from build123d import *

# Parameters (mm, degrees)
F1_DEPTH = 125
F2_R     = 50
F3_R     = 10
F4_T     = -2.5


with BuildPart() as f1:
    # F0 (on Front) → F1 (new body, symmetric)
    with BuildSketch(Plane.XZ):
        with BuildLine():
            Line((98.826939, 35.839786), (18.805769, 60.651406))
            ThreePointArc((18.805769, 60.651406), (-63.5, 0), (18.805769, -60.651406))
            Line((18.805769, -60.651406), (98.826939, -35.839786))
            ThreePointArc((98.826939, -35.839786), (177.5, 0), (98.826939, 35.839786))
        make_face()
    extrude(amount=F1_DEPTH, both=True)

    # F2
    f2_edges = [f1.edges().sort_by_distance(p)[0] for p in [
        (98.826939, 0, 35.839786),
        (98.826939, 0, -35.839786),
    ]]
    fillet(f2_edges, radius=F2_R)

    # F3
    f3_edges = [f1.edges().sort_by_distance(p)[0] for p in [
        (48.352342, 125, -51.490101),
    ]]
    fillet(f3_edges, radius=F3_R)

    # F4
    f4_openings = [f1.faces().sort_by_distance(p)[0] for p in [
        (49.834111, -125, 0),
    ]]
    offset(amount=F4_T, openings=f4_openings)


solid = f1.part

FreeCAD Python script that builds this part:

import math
import FreeCAD as App
import Part
import Sketcher
from FreeCAD import Vector


def edges_at(feature, points):
    """Names of the edges that pass closest to the given points."""
    edges = feature.Shape.Edges
    near = lambda p: min(range(len(edges)), key=lambda i: edges[i].distToShape(Part.Vertex(*p))[0])
    return sorted({f"Edge{near(p) + 1}" for p in points})


def faces_at(feature, points):
    """Names of the faces that lie closest to the given points."""
    faces = feature.Shape.Faces
    near = lambda p: min(range(len(faces)), key=lambda i: faces[i].distToShape(Part.Vertex(*p))[0])
    return sorted({f"Face{near(p) + 1}" for p in points})

doc = App.newDocument("Part")
body = doc.addObject("PartDesign::Body", "Body")

# Sketch on XZ plane
sketch1 = body.newObject("Sketcher::SketchObject", "Sketch")
sketch1.AttachmentSupport = (doc.getObject("XZ_Plane"), [""])
sketch1.MapMode = "FlatFace"
sketch1.addGeometry([
    Part.LineSegment(Vector(99, 36, 0), Vector(19, 61, 0)),
    Part.ArcOfCircle(Part.Circle(Vector(0, 0, 0), Vector(0, 0, 1), 63), math.radians(73), math.radians(287)),
    Part.LineSegment(Vector(19, -61, 0), Vector(99, -36, 0)),
    Part.ArcOfCircle(Part.Circle(Vector(130, 0, 0), Vector(0, 0, 1), 47), math.radians(-131), math.radians(131)),
], False)
sketch1.addConstraint([
    Sketcher.Constraint("Tangent", 0, 2, 1, 1),
    Sketcher.Constraint("Tangent", 1, 2, 2, 1),
    Sketcher.Constraint("Coincident", 2, 2, 3, 1),
    Sketcher.Constraint("Coincident", 3, 2, 0, 1),
    Sketcher.Constraint("Coincident", 1, 3, -1, 1),
    Sketcher.Constraint("Symmetric", 2, 2, 3, 2, -1),
    Sketcher.Constraint("Radius", 1, 63.5),
    Sketcher.Constraint("Radius", 3, 47.5),
    Sketcher.Constraint("DistanceX", -1, 1, 3, 3, 130.0),
    Sketcher.Constraint("DistanceX", -1, 1, 0, 2, 18.805769),
])
pad1 = body.newObject("PartDesign::Pad", "Pad")
pad1.Profile = sketch1
pad1.Length = 250
pad1.Midplane = True
doc.recompute()

fillet = body.newObject("PartDesign::Fillet", "Fillet")
fillet.Base = (pad1, edges_at(pad1, [(98.827, 0, 35.84), (98.827, 0, -35.84)]))
fillet.Radius = 50
doc.recompute()

fillet2 = body.newObject("PartDesign::Fillet", "Fillet001")
fillet2.Base = (fillet, edges_at(fillet, [(48.352, 125, -51.49)]))
fillet2.Radius = 10
doc.recompute()

thickness = body.newObject("PartDesign::Thickness", "Thickness")
thickness.Base = (fillet2, faces_at(fillet2, [(57, -125, 0)]))
thickness.Value = 2.5
thickness.Reversed = True
thickness.Join = "Arc"

doc.recompute()
